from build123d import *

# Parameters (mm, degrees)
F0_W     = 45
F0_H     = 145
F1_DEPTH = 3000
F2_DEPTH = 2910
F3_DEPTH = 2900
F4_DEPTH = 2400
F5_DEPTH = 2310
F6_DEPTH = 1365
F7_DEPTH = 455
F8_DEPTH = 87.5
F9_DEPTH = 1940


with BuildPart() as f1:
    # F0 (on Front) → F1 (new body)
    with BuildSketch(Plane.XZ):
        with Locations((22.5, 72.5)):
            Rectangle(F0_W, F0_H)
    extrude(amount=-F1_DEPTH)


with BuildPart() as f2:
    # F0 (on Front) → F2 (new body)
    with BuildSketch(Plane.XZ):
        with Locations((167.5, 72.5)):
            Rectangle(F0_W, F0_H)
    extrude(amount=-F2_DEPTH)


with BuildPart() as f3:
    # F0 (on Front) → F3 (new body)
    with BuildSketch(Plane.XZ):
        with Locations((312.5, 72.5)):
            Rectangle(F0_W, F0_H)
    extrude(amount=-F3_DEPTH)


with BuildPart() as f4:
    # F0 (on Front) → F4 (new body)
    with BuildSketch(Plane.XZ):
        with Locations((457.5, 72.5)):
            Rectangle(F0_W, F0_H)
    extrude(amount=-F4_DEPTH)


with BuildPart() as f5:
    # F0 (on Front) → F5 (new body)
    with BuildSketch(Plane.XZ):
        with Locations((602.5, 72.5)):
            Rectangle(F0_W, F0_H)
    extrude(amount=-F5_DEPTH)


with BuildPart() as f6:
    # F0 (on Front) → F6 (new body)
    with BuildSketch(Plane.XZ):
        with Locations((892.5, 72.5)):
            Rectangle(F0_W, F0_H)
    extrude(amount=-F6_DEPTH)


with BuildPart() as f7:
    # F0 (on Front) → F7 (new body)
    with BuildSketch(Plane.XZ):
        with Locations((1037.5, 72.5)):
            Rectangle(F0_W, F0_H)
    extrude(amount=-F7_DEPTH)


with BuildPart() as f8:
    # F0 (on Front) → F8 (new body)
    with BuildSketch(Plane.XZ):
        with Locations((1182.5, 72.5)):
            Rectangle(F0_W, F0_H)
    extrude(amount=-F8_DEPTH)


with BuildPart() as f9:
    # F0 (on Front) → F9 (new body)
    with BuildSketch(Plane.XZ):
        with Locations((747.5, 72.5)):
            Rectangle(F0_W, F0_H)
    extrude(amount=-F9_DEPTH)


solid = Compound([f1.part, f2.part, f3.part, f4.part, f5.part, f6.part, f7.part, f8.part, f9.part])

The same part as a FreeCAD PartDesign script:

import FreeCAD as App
import Part
import Sketcher
from FreeCAD import Vector
Q = App.Units.Quantity

doc = App.newDocument("Part")
body = doc.addObject("PartDesign::Body", "Body")

sketch1 = body.newObject("Sketcher::SketchObject", "Sketch")
sketch1.AttachmentSupport = (doc.getObject("XZ_Plane"), [""])
sketch1.MapMode = "FlatFace"
sketch1.addGeometry([
    Part.LineSegment(Vector(0, 145, 0), Vector(0, 0, 0)),
    Part.LineSegment(Vector(0, 0, 0), Vector(45, 0, 0)),
    Part.LineSegment(Vector(45, 0, 0), Vector(45, 145, 0)),
    Part.LineSegment(Vector(45, 145, 0), Vector(0, 145, 0)),
], False)
sketch1.addConstraint([
    Sketcher.Constraint("Coincident", 0, 2, 1, 1),
    Sketcher.Constraint("Coincident", 1, 2, 2, 1),
    Sketcher.Constraint("Coincident", 2, 2, 3, 1),
    Sketcher.Constraint("Coincident", 3, 2, 0, 1),
    Sketcher.Constraint("Vertical", 0),
    Sketcher.Constraint("Horizontal", 1),
    Sketcher.Constraint("Vertical", 2),
    Sketcher.Constraint("Horizontal", 3),
    Sketcher.Constraint("Coincident", 0, 2, -1, 1),
    Sketcher.Constraint("DistanceX", 1, 1, 1, 2, Q("45 mm")),
    Sketcher.Constraint("DistanceY", 0, 2, 0, 1, Q("145 mm")),
])
pad1 = body.newObject("PartDesign::Pad", "Pad")
pad1.Profile = sketch1
pad1.Length = 3000
pad1.Reversed = True
body2 = doc.addObject("PartDesign::Body", "Body001")

sketch2 = body2.newObject("Sketcher::SketchObject", "Sketch001")
sketch2.AttachmentSupport = (doc.getObject("XZ_Plane001"), [""])
sketch2.MapMode = "FlatFace"
sketch2.addGeometry([
    Part.LineSegment(Vector(145, 145, 0), Vector(145, 0, 0)),
    Part.LineSegment(Vector(145, 0, 0), Vector(190, 0, 0)),
    Part.LineSegment(Vector(190, 0, 0), Vector(190, 145, 0)),
    Part.LineSegment(Vector(190, 145, 0), Vector(145, 145, 0)),
], False)
sketch2.addConstraint([
    Sketcher.Constraint("Coincident", 0, 2, 1, 1),
    Sketcher.Constraint("Coincident", 1, 2, 2, 1),
    Sketcher.Constraint("Coincident", 2, 2, 3, 1),
    Sketcher.Constraint("Coincident", 3, 2, 0, 1),
    Sketcher.Constraint("Vertical", 0),
    Sketcher.Constraint("Horizontal", 1),
    Sketcher.Constraint("Vertical", 2),
    Sketcher.Constraint("Horizontal", 3),
    Sketcher.Constraint("PointOnObject", 0, 2, -1),
    Sketcher.Constraint("DistanceX", 1, 1, 1, 2, Q("45 mm")),
    Sketcher.Constraint("DistanceY", 0, 2, 0, 1, Q("145 mm")),
    Sketcher.Constraint("DistanceX", -1, 1, 0, 2, Q("145 mm")),
])
pad2 = body2.newObject("PartDesign::Pad", "Pad001")
pad2.Profile = sketch2
pad2.Length = 2910
pad2.Reversed = True
body3 = doc.addObject("PartDesign::Body", "Body002")

sketch3 = body3.newObject("Sketcher::SketchObject", "Sketch002")
sketch3.AttachmentSupport = (doc.getObject("XZ_Plane002"), [""])
sketch3.MapMode = "FlatFace"
sketch3.addGeometry([
    Part.LineSegment(Vector(290, 145, 0), Vector(290, 0, 0)),
    Part.LineSegment(Vector(290, 0, 0), Vector(335, 0, 0)),
    Part.LineSegment(Vector(335, 0, 0), Vector(335, 145, 0)),
    Part.LineSegment(Vector(335, 145, 0), Vector(290, 145, 0)),
], False)
sketch3.addConstraint([
    Sketcher.Constraint("Coincident", 0, 2, 1, 1),
    Sketcher.Constraint("Coincident", 1, 2, 2, 1),
    Sketcher.Constraint("Coincident", 2, 2, 3, 1),
    Sketcher.Constraint("Coincident", 3, 2, 0, 1),
    Sketcher.Constraint("Vertical", 0),
    Sketcher.Constraint("Horizontal", 1),
    Sketcher.Constraint("Vertical", 2),
    Sketcher.Constraint("Horizontal", 3),
    Sketcher.Constraint("PointOnObject", 0, 2, -1),
    Sketcher.Constraint("DistanceX", 1, 1, 1, 2, Q("45 mm")),
    Sketcher.Constraint("DistanceY", 0, 2, 0, 1, Q("145 mm")),
    Sketcher.Constraint("DistanceX", -1, 1, 0, 2, Q("290 mm")),
])
pad3 = body3.newObject("PartDesign::Pad", "Pad002")
pad3.Profile = sketch3
pad3.Length = 2900
pad3.Reversed = True
body4 = doc.addObject("PartDesign::Body", "Body003")

sketch4 = body4.newObject("Sketcher::SketchObject", "Sketch003")
sketch4.AttachmentSupport = (doc.getObject("XZ_Plane003"), [""])
sketch4.MapMode = "FlatFace"
sketch4.addGeometry([
    Part.LineSegment(Vector(435, 145, 0), Vector(435, 0, 0)),
    Part.LineSegment(Vector(435, 0, 0), Vector(480, 0, 0)),
    Part.LineSegment(Vector(480, 0, 0), Vector(480, 145, 0)),
    Part.LineSegment(Vector(480, 145, 0), Vector(435, 145, 0)),
], False)
sketch4.addConstraint([
    Sketcher.Constraint("Coincident", 0, 2, 1, 1),
    Sketcher.Constraint("Coincident", 1, 2, 2, 1),
    Sketcher.Constraint("Coincident", 2, 2, 3, 1),
    Sketcher.Constraint("Coincident", 3, 2, 0, 1),
    Sketcher.Constraint("Vertical", 0),
    Sketcher.Constraint("Horizontal", 1),
    Sketcher.Constraint("Vertical", 2),
    Sketcher.Constraint("Horizontal", 3),
    Sketcher.Constraint("PointOnObject", 0, 2, -1),
    Sketcher.Constraint("DistanceX", 1, 1, 1, 2, Q("45 mm")),
    Sketcher.Constraint("DistanceY", 0, 2, 0, 1, Q("145 mm")),
    Sketcher.Constraint("DistanceX", -1, 1, 0, 2, Q("435 mm")),
])
pad4 = body4.newObject("PartDesign::Pad", "Pad003")
pad4.Profile = sketch4
pad4.Length = 2400
pad4.Reversed = True
body5 = doc.addObject("PartDesign::Body", "Body004")

sketch5 = body5.newObject("Sketcher::SketchObject", "Sketch004")
sketch5.AttachmentSupport = (doc.getObject("XZ_Plane004"), [""])
sketch5.MapMode = "FlatFace"
sketch5.addGeometry([
    Part.LineSegment(Vector(580, 145, 0), Vector(580, 0, 0)),
    Part.LineSegment(Vector(580, 0, 0), Vector(625, 0, 0)),
    Part.LineSegment(Vector(625, 0, 0), Vector(625, 145, 0)),
    Part.LineSegment(Vector(625, 145, 0), Vector(580, 145, 0)),
], False)
sketch5.addConstraint([
    Sketcher.Constraint("Coincident", 0, 2, 1, 1),
    Sketcher.Constraint("Coincident", 1, 2, 2, 1),
    Sketcher.Constraint("Coincident", 2, 2, 3, 1),
    Sketcher.Constraint("Coincident", 3, 2, 0, 1),
    Sketcher.Constraint("Vertical", 0),
    Sketcher.Constraint("Horizontal", 1),
    Sketcher.Constraint("Vertical", 2),
    Sketcher.Constraint("Horizontal", 3),
    Sketcher.Constraint("PointOnObject", 0, 2, -1),
    Sketcher.Constraint("DistanceX", 1, 1, 1, 2, Q("45 mm")),
    Sketcher.Constraint("DistanceY", 0, 2, 0, 1, Q("145 mm")),
    Sketcher.Constraint("DistanceX", -1, 1, 0, 2, Q("580 mm")),
])
pad5 = body5.newObject("PartDesign::Pad", "Pad004")
pad5.Profile = sketch5
pad5.Length = 2310
pad5.Reversed = True
body6 = doc.addObject("PartDesign::Body", "Body005")

sketch6 = body6.newObject("Sketcher::SketchObject", "Sketch005")
sketch6.AttachmentSupport = (doc.getObject("XZ_Plane005"), [""])
sketch6.MapMode = "FlatFace"
sketch6.addGeometry([
    Part.LineSegment(Vector(870, 145, 0), Vector(870, 0, 0)),
    Part.LineSegment(Vector(870, 0, 0), Vector(915, 0, 0)),
    Part.LineSegment(Vector(915, 0, 0), Vector(915, 145, 0)),
    Part.LineSegment(Vector(915, 145, 0), Vector(870, 145, 0)),
], False)
sketch6.addConstraint([
    Sketcher.Constraint("Coincident", 0, 2, 1, 1),
    Sketcher.Constraint("Coincident", 1, 2, 2, 1),
    Sketcher.Constraint("Coincident", 2, 2, 3, 1),
    Sketcher.Constraint("Coincident", 3, 2, 0, 1),
    Sketcher.Constraint("Vertical", 0),
    Sketcher.Constraint("Horizontal", 1),
    Sketcher.Constraint("Vertical", 2),
    Sketcher.Constraint("Horizontal", 3),
    Sketcher.Constraint("PointOnObject", 0, 2, -1),
    Sketcher.Constraint("DistanceX", 1, 1, 1, 2, Q("45 mm")),
    Sketcher.Constraint("DistanceY", 0, 2, 0, 1, Q("145 mm")),
    Sketcher.Constraint("DistanceX", -1, 1, 0, 2, Q("870 mm")),
])
pad6 = body6.newObject("PartDesign::Pad", "Pad005")
pad6.Profile = sketch6
pad6.Length = 1365
pad6.Reversed = True
body7 = doc.addObject("PartDesign::Body", "Body006")

sketch7 = body7.newObject("Sketcher::SketchObject", "Sketch006")
sketch7.AttachmentSupport = (doc.getObject("XZ_Plane006"), [""])
sketch7.MapMode = "FlatFace"
sketch7.addGeometry([
    Part.LineSegment(Vector(1015, 145, 0), Vector(1015, 0, 0)),
    Part.LineSegment(Vector(1015, 0, 0), Vector(1060, 0, 0)),
    Part.LineSegment(Vector(1060, 0, 0), Vector(1060, 145, 0)),
    Part.LineSegment(Vector(1060, 145, 0), Vector(1015, 145, 0)),
], False)
sketch7.addConstraint([
    Sketcher.Constraint("Coincident", 0, 2, 1, 1),
    Sketcher.Constraint("Coincident", 1, 2, 2, 1),
    Sketcher.Constraint("Coincident", 2, 2, 3, 1),
    Sketcher.Constraint("Coincident", 3, 2, 0, 1),
    Sketcher.Constraint("Vertical", 0),
    Sketcher.Constraint("Horizontal", 1),
    Sketcher.Constraint("Vertical", 2),
    Sketcher.Constraint("Horizontal", 3),
    Sketcher.Constraint("PointOnObject", 0, 2, -1),
    Sketcher.Constraint("DistanceX", 1, 1, 1, 2, Q("45 mm")),
    Sketcher.Constraint("DistanceY", 0, 2, 0, 1, Q("145 mm")),
    Sketcher.Constraint("DistanceX", -1, 1, 0, 2, Q("1015 mm")),
])
pad7 = body7.newObject("PartDesign::Pad", "Pad006")
pad7.Profile = sketch7
pad7.Length = 455
pad7.Reversed = True
body8 = doc.addObject("PartDesign::Body", "Body007")

sketch8 = body8.newObject("Sketcher::SketchObject", "Sketch007")
sketch8.AttachmentSupport = (doc.getObject("XZ_Plane007"), [""])
sketch8.MapMode = "FlatFace"
sketch8.addGeometry([
    Part.LineSegment(Vector(1160, 145, 0), Vector(1160, 0, 0)),
    Part.LineSegment(Vector(1160, 0, 0), Vector(1205, 0, 0)),
    Part.LineSegment(Vector(1205, 0, 0), Vector(1205, 145, 0)),
    Part.LineSegment(Vector(1205, 145, 0), Vector(1160, 145, 0)),
], False)
sketch8.addConstraint([
    Sketcher.Constraint("Coincident", 0, 2, 1, 1),
    Sketcher.Constraint("Coincident", 1, 2, 2, 1),
    Sketcher.Constraint("Coincident", 2, 2, 3, 1),
    Sketcher.Constraint("Coincident", 3, 2, 0, 1),
    Sketcher.Constraint("Vertical", 0),
    Sketcher.Constraint("Horizontal", 1),
    Sketcher.Constraint("Vertical", 2),
    Sketcher.Constraint("Horizontal", 3),
    Sketcher.Constraint("PointOnObject", 0, 2, -1),
    Sketcher.Constraint("DistanceX", 1, 1, 1, 2, Q("45 mm")),
    Sketcher.Constraint("DistanceY", 0, 2, 0, 1, Q("145 mm")),
    Sketcher.Constraint("DistanceX", -1, 1, 0, 2, Q("1160 mm")),
])
pad8 = body8.newObject("PartDesign::Pad", "Pad007")
pad8.Profile = sketch8
pad8.Length = 87.5
pad8.Reversed = True
body9 = doc.addObject("PartDesign::Body", "Body008")

sketch9 = body9.newObject("Sketcher::SketchObject", "Sketch008")
sketch9.AttachmentSupport = (doc.getObject("XZ_Plane008"), [""])
sketch9.MapMode = "FlatFace"
sketch9.addGeometry([
    Part.LineSegment(Vector(725, 145, 0), Vector(725, 0, 0)),
    Part.LineSegment(Vector(725, 0, 0), Vector(770, 0, 0)),
    Part.LineSegment(Vector(770, 0, 0), Vector(770, 145, 0)),
    Part.LineSegment(Vector(770, 145, 0), Vector(725, 145, 0)),
], False)
sketch9.addConstraint([
    Sketcher.Constraint("Coincident", 0, 2, 1, 1),
    Sketcher.Constraint("Coincident", 1, 2, 2, 1),
    Sketcher.Constraint("Coincident", 2, 2, 3, 1),
    Sketcher.Constraint("Coincident", 3, 2, 0, 1),
    Sketcher.Constraint("Vertical", 0),
    Sketcher.Constraint("Horizontal", 1),
    Sketcher.Constraint("Vertical", 2),
    Sketcher.Constraint("Horizontal", 3),
    Sketcher.Constraint("PointOnObject", 0, 2, -1),
    Sketcher.Constraint("DistanceX", 1, 1, 1, 2, Q("45 mm")),
    Sketcher.Constraint("DistanceY", 0, 2, 0, 1, Q("145 mm")),
    Sketcher.Constraint("DistanceX", -1, 1, 0, 2, Q("725 mm")),
])
pad9 = body9.newObject("PartDesign::Pad", "Pad008")
pad9.Profile = sketch9
pad9.Length = 1940
pad9.Reversed = True

doc.recompute()
